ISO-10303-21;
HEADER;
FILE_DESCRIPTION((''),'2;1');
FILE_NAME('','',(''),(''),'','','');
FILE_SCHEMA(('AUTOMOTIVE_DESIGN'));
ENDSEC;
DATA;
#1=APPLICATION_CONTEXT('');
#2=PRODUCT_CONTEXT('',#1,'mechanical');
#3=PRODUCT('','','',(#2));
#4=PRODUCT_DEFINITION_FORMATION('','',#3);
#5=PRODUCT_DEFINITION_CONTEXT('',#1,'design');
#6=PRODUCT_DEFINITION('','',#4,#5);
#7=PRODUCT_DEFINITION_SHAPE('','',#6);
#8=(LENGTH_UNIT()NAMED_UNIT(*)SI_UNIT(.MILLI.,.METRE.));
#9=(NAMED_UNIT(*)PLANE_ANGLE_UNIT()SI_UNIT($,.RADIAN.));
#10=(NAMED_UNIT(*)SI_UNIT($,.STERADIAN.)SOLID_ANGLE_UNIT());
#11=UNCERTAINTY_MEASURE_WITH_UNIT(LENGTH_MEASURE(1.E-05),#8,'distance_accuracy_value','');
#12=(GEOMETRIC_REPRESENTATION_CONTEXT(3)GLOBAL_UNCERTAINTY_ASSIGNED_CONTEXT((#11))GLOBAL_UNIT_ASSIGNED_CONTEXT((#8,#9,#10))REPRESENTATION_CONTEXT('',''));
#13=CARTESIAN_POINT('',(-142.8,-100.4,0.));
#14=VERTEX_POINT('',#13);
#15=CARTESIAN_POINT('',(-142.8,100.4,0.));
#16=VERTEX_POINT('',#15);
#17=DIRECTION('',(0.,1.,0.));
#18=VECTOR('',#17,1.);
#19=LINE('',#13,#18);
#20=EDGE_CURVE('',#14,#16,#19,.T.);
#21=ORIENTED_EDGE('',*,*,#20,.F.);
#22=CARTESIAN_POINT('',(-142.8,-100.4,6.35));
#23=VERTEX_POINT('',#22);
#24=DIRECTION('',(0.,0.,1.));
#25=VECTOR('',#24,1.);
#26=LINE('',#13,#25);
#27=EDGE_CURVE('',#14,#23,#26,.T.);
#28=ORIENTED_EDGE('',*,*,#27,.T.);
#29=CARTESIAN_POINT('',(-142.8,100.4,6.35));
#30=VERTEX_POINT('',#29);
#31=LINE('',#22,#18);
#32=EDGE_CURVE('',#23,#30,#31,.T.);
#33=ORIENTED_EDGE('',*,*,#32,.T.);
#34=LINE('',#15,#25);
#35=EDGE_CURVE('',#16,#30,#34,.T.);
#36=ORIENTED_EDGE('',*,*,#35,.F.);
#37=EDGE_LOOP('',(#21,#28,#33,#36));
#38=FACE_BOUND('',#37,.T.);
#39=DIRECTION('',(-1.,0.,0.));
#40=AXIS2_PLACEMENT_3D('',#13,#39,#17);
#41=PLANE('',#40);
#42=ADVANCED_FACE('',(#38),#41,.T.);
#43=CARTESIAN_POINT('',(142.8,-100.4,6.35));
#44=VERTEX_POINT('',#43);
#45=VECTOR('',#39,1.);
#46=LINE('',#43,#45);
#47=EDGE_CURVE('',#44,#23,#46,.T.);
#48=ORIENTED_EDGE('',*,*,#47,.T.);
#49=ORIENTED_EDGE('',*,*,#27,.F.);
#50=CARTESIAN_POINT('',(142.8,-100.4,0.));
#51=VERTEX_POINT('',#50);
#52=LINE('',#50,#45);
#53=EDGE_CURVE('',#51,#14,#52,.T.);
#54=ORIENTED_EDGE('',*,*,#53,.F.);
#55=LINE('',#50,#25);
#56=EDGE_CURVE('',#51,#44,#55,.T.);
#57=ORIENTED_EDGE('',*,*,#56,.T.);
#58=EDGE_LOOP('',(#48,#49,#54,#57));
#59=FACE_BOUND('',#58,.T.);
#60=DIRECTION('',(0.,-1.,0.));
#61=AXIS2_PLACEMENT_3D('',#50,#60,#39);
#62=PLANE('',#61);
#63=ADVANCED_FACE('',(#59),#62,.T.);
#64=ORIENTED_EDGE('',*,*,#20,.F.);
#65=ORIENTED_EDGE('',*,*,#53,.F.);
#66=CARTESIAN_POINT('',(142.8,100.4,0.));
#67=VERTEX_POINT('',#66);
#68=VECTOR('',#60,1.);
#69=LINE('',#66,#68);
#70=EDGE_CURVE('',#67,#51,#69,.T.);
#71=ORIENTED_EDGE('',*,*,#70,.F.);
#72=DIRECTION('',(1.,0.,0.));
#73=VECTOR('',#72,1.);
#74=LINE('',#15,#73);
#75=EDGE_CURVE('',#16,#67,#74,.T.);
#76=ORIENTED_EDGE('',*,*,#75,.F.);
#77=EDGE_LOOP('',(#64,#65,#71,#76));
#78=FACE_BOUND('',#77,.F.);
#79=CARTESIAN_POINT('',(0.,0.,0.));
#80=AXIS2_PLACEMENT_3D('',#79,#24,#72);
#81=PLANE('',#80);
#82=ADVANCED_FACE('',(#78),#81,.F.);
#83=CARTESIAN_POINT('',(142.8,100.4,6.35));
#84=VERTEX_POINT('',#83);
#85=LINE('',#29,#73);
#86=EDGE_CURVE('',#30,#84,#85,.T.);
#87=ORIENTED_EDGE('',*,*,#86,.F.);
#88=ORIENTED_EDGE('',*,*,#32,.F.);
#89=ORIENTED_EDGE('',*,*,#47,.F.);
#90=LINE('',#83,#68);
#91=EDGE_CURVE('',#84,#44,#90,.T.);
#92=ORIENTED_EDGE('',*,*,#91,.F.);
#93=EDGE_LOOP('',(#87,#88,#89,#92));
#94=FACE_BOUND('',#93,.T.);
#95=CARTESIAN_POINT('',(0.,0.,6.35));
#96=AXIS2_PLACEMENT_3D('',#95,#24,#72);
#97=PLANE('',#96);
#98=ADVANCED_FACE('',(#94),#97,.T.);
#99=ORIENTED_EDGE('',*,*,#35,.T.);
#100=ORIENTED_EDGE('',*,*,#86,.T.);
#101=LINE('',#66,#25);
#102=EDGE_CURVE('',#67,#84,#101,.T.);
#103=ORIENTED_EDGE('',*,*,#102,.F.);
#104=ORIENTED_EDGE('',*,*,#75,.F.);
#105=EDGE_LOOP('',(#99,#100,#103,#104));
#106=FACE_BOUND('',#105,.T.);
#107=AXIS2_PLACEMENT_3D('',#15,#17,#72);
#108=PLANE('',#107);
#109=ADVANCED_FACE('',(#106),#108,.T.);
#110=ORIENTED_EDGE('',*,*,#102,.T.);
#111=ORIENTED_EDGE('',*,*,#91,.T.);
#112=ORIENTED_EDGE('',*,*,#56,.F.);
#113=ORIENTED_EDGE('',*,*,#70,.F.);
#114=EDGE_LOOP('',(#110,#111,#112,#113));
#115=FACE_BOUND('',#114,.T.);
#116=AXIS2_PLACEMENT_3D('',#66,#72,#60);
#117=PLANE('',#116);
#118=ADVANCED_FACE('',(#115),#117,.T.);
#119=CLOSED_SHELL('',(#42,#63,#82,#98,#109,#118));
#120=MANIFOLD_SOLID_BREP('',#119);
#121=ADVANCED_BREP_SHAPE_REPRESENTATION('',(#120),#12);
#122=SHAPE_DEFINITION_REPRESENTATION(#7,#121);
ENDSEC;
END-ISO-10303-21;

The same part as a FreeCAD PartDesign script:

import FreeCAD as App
import Part
import Sketcher
Q = App.Units.Quantity

doc = App.newDocument("Part")
body = doc.addObject("PartDesign::Body", "Body")

# Sketch on XY plane
sketch1 = doc.addObject("Sketcher::SketchObject", "Sketch")
body.addObject(sketch1)
sketch1.AttachmentSupport = (doc.XY_Plane, [""])
sketch1.MapMode = "FlatFace"
sketch1.addGeometry([
    Part.LineSegment(App.Vector(-142.8, -100.4, 0), App.Vector(142.8, -100.4, 0)),
    Part.LineSegment(App.Vector(142.8, -100.4, 0), App.Vector(142.8, 100.4, 0)),
    Part.LineSegment(App.Vector(142.8, 100.4, 0), App.Vector(-142.8, 100.4, 0)),
    Part.LineSegment(App.Vector(-142.8, 100.4, 0), App.Vector(-142.8, -100.4, 0)),
], False)
sketch1.addConstraint([
    Sketcher.Constraint("Coincident", 0, 2, 1, 1),
    Sketcher.Constraint("Coincident", 1, 2, 2, 1),
    Sketcher.Constraint("Coincident", 2, 2, 3, 1),
    Sketcher.Constraint("Coincident", 3, 2, 0, 1),
    Sketcher.Constraint("Horizontal", 0),
    Sketcher.Constraint("Vertical", 1),
    Sketcher.Constraint("Horizontal", 2),
    Sketcher.Constraint("Vertical", 3),
    Sketcher.Constraint("Symmetric", 0, 2, 2, 2, -1, 1),
    Sketcher.Constraint("DistanceX", 0, 1, 0, 2, Q("11.2441 in")),
    Sketcher.Constraint("DistanceY", 1, 1, 1, 2, Q("7.9055 in")),
])
pad1 = doc.addObject("PartDesign::Pad", "Pad")
body.addObject(pad1)
pad1.Profile = sketch1
pad1.Length = Q("0.25 in")

doc.recompute()
